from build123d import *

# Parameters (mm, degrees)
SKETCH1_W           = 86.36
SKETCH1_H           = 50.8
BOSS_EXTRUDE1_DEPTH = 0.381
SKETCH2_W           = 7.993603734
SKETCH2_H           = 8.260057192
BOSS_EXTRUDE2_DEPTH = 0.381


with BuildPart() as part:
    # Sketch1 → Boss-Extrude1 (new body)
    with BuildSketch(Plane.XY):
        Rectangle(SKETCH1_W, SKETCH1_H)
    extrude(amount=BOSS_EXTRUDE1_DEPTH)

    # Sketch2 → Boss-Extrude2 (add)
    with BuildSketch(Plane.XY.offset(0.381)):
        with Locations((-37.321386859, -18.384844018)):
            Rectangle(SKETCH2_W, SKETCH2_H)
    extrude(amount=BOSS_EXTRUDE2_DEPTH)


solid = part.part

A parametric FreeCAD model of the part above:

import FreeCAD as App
import Part
import Sketcher
Q = App.Units.Quantity

doc = App.newDocument("Part")
body = doc.addObject("PartDesign::Body", "Body")

# Sketch on XY plane
sketch1 = body.newObject("Sketcher::SketchObject", "Sketch")
sketch1.AttachmentSupport = (doc.getObject("XY_Plane"), [""])
sketch1.MapMode = "FlatFace"
sketch1.addGeometry([
    Part.LineSegment(App.Vector(-43.18, 25.4, 0), App.Vector(-43.18, -25.4, 0)),
    Part.LineSegment(App.Vector(-43.18, -25.4, 0), App.Vector(43.18, -25.4, 0)),
    Part.LineSegment(App.Vector(43.18, -25.4, 0), App.Vector(43.18, 25.4, 0)),
    Part.LineSegment(App.Vector(43.18, 25.4, 0), App.Vector(-43.18, 25.4, 0)),
], False)
sketch1.addConstraint([
    Sketcher.Constraint("Coincident", 0, 2, 1, 1),
    Sketcher.Constraint("Coincident", 1, 2, 2, 1),
    Sketcher.Constraint("Coincident", 2, 2, 3, 1),
    Sketcher.Constraint("Coincident", 3, 2, 0, 1),
    Sketcher.Constraint("Vertical", 0),
    Sketcher.Constraint("Horizontal", 1),
    Sketcher.Constraint("Vertical", 2),
    Sketcher.Constraint("Horizontal", 3),
    Sketcher.Constraint("Symmetric", 0, 2, 2, 2, -1, 1),
    Sketcher.Constraint("DistanceY", 0, 2, 0, 1, Q("2 in")),
    Sketcher.Constraint("DistanceX", 1, 1, 1, 2, Q("3.4 in")),
])
pad1 = body.newObject("PartDesign::Pad", "Pad")
pad1.Profile = sketch1
pad1.Length = Q("0.015 in")

# Sketch on XY plane
sketch2 = body.newObject("Sketcher::SketchObject", "Sketch001")
sketch2.AttachmentSupport = (doc.getObject("XY_Plane"), [""])
sketch2.MapMode = "FlatFace"
sketch2.AttachmentOffset = App.Placement(App.Vector(0, 0, 0.015 * 25.4), App.Rotation())
sketch2.addGeometry([
    Part.LineSegment(App.Vector(-41.318189, -14.254815, 0), App.Vector(-41.318189, -22.514873, 0)),
    Part.LineSegment(App.Vector(-41.318189, -22.514873, 0), App.Vector(-33.324585, -22.514873, 0)),
    Part.LineSegment(App.Vector(-33.324585, -22.514873, 0), App.Vector(-33.324585, -14.254815, 0)),
    Part.LineSegment(App.Vector(-33.324585, -14.254815, 0), App.Vector(-41.318189, -14.254815, 0)),
], False)
sketch2.addConstraint([
    Sketcher.Constraint("Coincident", 0, 2, 1, 1),
    Sketcher.Constraint("Coincident", 1, 2, 2, 1),
    Sketcher.Constraint("Coincident", 2, 2, 3, 1),
    Sketcher.Constraint("Coincident", 3, 2, 0, 1),
    Sketcher.Constraint("Vertical", 0),
    Sketcher.Constraint("Horizontal", 1),
    Sketcher.Constraint("Vertical", 2),
    Sketcher.Constraint("Horizontal", 3),
    Sketcher.Constraint("DistanceX", 1, 1, 1, 2, Q("7.993604 mm")),
    Sketcher.Constraint("DistanceY", 0, 2, 0, 1, Q("8.260057 mm")),
    Sketcher.Constraint("DistanceX", 0, 2, -1, 1, Q("41.318189 mm")),
    Sketcher.Constraint("DistanceY", 0, 2, -1, 1, Q("22.514873 mm")),
])
pad2 = body.newObject("PartDesign::Pad", "Pad001")
pad2.Profile = sketch2
pad2.Length = Q("0.015 in")

doc.recompute()
